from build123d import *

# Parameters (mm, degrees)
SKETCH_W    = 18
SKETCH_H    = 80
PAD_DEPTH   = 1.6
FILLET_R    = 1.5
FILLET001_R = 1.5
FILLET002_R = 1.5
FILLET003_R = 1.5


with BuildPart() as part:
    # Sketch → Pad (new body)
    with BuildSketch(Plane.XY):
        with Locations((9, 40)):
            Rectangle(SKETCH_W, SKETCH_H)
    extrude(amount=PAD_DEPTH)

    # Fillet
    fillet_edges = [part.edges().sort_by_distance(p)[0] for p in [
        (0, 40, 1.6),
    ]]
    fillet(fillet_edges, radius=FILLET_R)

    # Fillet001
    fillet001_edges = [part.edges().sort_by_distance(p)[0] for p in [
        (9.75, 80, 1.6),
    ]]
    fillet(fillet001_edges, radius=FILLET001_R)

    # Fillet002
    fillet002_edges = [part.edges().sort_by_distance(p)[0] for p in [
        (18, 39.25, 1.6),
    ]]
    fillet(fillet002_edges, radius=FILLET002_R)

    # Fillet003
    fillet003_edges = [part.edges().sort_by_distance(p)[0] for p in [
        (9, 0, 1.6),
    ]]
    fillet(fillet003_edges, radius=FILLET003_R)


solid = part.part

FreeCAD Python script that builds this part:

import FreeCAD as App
import Part
import Sketcher


def edges_at(feature, points):
    """Names of the edges that pass closest to the given points."""
    edges = feature.Shape.Edges
    near = lambda p: min(range(len(edges)), key=lambda i: edges[i].distToShape(Part.Vertex(*p))[0])
    return sorted({f"Edge{near(p) + 1}" for p in points})

doc = App.newDocument("Part")
body = doc.addObject("PartDesign::Body", "Body")

# Sketch on XY plane
sketch1 = doc.addObject("Sketcher::SketchObject", "Sketch")
body.addObject(sketch1)
sketch1.AttachmentSupport = (doc.XY_Plane, [""])
sketch1.MapMode = "FlatFace"
sketch1.addGeometry([
    Part.LineSegment(App.Vector(0, 80, 0), App.Vector(0, 0, 0)),
    Part.LineSegment(App.Vector(0, 0, 0), App.Vector(18, 0, 0)),
    Part.LineSegment(App.Vector(18, 0, 0), App.Vector(18, 80, 0)),
    Part.LineSegment(App.Vector(18, 80, 0), App.Vector(0, 80, 0)),
], False)
sketch1.addConstraint([
    Sketcher.Constraint("Coincident", 0, 2, 1, 1),
    Sketcher.Constraint("Coincident", 1, 2, 2, 1),
    Sketcher.Constraint("Coincident", 2, 2, 3, 1),
    Sketcher.Constraint("Coincident", 3, 2, 0, 1),
    Sketcher.Constraint("Vertical", 0),
    Sketcher.Constraint("Horizontal", 1),
    Sketcher.Constraint("Vertical", 2),
    Sketcher.Constraint("Horizontal", 3),
    Sketcher.Constraint("Coincident", 0, 2, -1, 1),
    Sketcher.Constraint("DistanceX", 1, 1, 1, 2, 18.0),
    Sketcher.Constraint("DistanceY", 0, 2, 0, 1, 80.0),
])
pad1 = doc.addObject("PartDesign::Pad", "Pad")
body.addObject(pad1)
pad1.Profile = sketch1
pad1.Length = 1.6
doc.recompute()

fillet = doc.addObject("PartDesign::Fillet", "Fillet")
body.addObject(fillet)
fillet.Base = (pad1, edges_at(pad1, [(0, 40, 1.6)]))
fillet.Radius = 1.5
doc.recompute()

fillet2 = doc.addObject("PartDesign::Fillet", "Fillet001")
body.addObject(fillet2)
fillet2.Base = (fillet, edges_at(fillet, [(9.75, 80, 1.6)]))
fillet2.Radius = 1.5
doc.recompute()

fillet3 = doc.addObject("PartDesign::Fillet", "Fillet002")
body.addObject(fillet3)
fillet3.Base = (fillet2, edges_at(fillet2, [(18, 39.25, 1.6)]))
fillet3.Radius = 1.5
doc.recompute()

fillet4 = doc.addObject("PartDesign::Fillet", "Fillet003")
body.addObject(fillet4)
fillet4.Base = (fillet3, edges_at(fillet3, [(9, 0, 1.6)]))
fillet4.Radius = 1.5

doc.recompute()
